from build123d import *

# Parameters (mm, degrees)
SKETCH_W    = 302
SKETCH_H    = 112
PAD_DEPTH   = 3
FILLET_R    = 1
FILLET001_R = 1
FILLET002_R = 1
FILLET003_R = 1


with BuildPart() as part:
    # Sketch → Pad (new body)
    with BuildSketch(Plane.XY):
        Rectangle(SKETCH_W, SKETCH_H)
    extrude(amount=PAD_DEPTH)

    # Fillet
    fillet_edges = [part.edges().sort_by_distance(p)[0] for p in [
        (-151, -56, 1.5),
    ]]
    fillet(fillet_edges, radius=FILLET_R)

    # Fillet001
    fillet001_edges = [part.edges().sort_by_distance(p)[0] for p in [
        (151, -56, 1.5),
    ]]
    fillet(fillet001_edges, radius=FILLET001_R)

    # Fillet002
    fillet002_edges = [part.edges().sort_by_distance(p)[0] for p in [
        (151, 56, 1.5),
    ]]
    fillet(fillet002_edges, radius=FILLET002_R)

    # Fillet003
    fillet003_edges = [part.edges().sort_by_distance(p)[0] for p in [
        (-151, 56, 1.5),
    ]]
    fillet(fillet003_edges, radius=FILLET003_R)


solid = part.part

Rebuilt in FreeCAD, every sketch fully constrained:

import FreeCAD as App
import Part
import Sketcher

V = App.Vector


def edges_at(feature, points):
    """Names of the edges that pass closest to the given points."""
    edges = feature.Shape.Edges
    near = lambda p: min(range(len(edges)), key=lambda i: edges[i].distToShape(Part.Vertex(*p))[0])
    return sorted({f"Edge{near(p) + 1}" for p in points})

doc = App.newDocument("Part")
body = doc.addObject("PartDesign::Body", "Body")

# Sketch on XY plane
sketch1 = doc.addObject("Sketcher::SketchObject", "Sketch")
body.addObject(sketch1)
sketch1.AttachmentSupport = (doc.XY_Plane, [""])
sketch1.MapMode = "FlatFace"
sketch1.addGeometry([
    Part.LineSegment(V(-151, 56, 0), V(-151, -56, 0)),
    Part.LineSegment(V(-151, -56, 0), V(151, -56, 0)),
    Part.LineSegment(V(151, -56, 0), V(151, 56, 0)),
    Part.LineSegment(V(151, 56, 0), V(-151, 56, 0)),
], False)
sketch1.addConstraint([
    Sketcher.Constraint("Coincident", 0, 2, 1, 1),
    Sketcher.Constraint("Coincident", 1, 2, 2, 1),
    Sketcher.Constraint("Coincident", 2, 2, 3, 1),
    Sketcher.Constraint("Coincident", 3, 2, 0, 1),
    Sketcher.Constraint("Vertical", 0),
    Sketcher.Constraint("Horizontal", 1),
    Sketcher.Constraint("Vertical", 2),
    Sketcher.Constraint("Horizontal", 3),
    Sketcher.Constraint("Symmetric", 0, 2, 2, 2, -1, 1),
    Sketcher.Constraint("DistanceX", 1, 1, 1, 2, 302.0),
    Sketcher.Constraint("DistanceY", 0, 2, 0, 1, 112.0),
])
pad1 = doc.addObject("PartDesign::Pad", "Pad")
body.addObject(pad1)
pad1.Profile = sketch1
pad1.Length = 3
doc.recompute()

fillet = doc.addObject("PartDesign::Fillet", "Fillet")
body.addObject(fillet)
fillet.Base = (pad1, edges_at(pad1, [(-151, -56, 1.5)]))
fillet.Radius = 1
doc.recompute()

fillet2 = doc.addObject("PartDesign::Fillet", "Fillet001")
body.addObject(fillet2)
fillet2.Base = (fillet, edges_at(fillet, [(151, -56, 1.5)]))
fillet2.Radius = 1
doc.recompute()

fillet3 = doc.addObject("PartDesign::Fillet", "Fillet002")
body.addObject(fillet3)
fillet3.Base = (fillet2, edges_at(fillet2, [(151, 56, 1.5)]))
fillet3.Radius = 1
doc.recompute()

fillet4 = doc.addObject("PartDesign::Fillet", "Fillet003")
body.addObject(fillet4)
fillet4.Base = (fillet3, edges_at(fillet3, [(-151, 56, 1.5)]))
fillet4.Radius = 1

doc.recompute()
